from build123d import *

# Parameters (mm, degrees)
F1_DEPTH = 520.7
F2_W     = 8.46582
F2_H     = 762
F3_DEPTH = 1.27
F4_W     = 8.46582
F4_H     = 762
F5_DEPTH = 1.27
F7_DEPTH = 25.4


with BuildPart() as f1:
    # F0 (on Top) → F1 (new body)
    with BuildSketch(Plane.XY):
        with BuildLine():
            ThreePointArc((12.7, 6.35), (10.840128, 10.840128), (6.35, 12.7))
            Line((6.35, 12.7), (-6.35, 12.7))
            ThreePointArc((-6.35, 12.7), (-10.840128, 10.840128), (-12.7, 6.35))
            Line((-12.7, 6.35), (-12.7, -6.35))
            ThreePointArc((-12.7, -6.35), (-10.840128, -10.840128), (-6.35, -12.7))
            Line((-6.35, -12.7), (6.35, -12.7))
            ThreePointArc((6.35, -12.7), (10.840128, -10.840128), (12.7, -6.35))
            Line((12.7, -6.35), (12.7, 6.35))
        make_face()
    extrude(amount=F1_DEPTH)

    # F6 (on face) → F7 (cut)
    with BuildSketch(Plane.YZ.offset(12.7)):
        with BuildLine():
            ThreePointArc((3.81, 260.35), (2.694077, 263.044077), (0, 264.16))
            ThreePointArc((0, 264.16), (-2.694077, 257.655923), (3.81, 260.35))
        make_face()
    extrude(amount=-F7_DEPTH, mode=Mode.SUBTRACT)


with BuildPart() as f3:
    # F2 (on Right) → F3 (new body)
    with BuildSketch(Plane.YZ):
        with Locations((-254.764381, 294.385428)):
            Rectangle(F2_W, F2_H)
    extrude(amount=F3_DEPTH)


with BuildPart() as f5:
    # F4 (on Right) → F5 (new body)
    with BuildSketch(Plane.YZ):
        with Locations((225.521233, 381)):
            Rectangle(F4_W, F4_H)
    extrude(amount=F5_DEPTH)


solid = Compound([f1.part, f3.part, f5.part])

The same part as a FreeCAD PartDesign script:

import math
import FreeCAD as App
import Part
import Sketcher
from FreeCAD import Vector
Q = App.Units.Quantity

doc = App.newDocument("Part")
body = doc.addObject("PartDesign::Body", "Body")

# Sketch on XY plane
sketch1 = body.newObject("Sketcher::SketchObject", "Sketch")
sketch1.AttachmentSupport = (doc.getObject("XY_Plane"), [""])
sketch1.MapMode = "FlatFace"
sketch1.addGeometry(Part.ArcOfCircle(Part.Circle(Vector(6, 6, 0), Vector(0, 0, 1), 6), math.radians(0), math.radians(90)), False)
sketch1.addGeometry(Part.LineSegment(Vector(6, 13, 0), Vector(-6, 13, 0)), False)
sketch1.addGeometry(Part.ArcOfCircle(Part.Circle(Vector(-6, 6, 0), Vector(0, 0, 1), 6), math.radians(90), math.radians(180)), False)
sketch1.addGeometry(Part.LineSegment(Vector(-13, 6, 0), Vector(-13, -6, 0)), False)
sketch1.addGeometry(Part.ArcOfCircle(Part.Circle(Vector(-6, -6, 0), Vector(0, 0, 1), 6), math.radians(-180), math.radians(-90)), False)
sketch1.addGeometry(Part.LineSegment(Vector(-6, -13, 0), Vector(6, -13, 0)), False)
sketch1.addGeometry(Part.ArcOfCircle(Part.Circle(Vector(6, -6, 0), Vector(0, 0, 1), 6), math.radians(-90), math.radians(0)), False)
sketch1.addGeometry(Part.LineSegment(Vector(13, -6, 0), Vector(13, 6, 0)), False)
sketch1.addConstraint(Sketcher.Constraint("Tangent", 0, 2, 1, 1))
sketch1.addConstraint(Sketcher.Constraint("Tangent", 1, 2, 2, 1))
sketch1.addConstraint(Sketcher.Constraint("Tangent", 2, 2, 3, 1))
sketch1.addConstraint(Sketcher.Constraint("Tangent", 3, 2, 4, 1))
sketch1.addConstraint(Sketcher.Constraint("Tangent", 4, 2, 5, 1))
sketch1.addConstraint(Sketcher.Constraint("Tangent", 5, 2, 6, 1))
sketch1.addConstraint(Sketcher.Constraint("Tangent", 6, 2, 7, 1))
sketch1.addConstraint(Sketcher.Constraint("Tangent", 7, 2, 0, 1))
sketch1.addConstraint(Sketcher.Constraint("Horizontal", 1))
sketch1.addConstraint(Sketcher.Constraint("Vertical", 3))
sketch1.addConstraint(Sketcher.Constraint("Horizontal", 5))
sketch1.addConstraint(Sketcher.Constraint("Vertical", 7))
sketch1.addConstraint(Sketcher.Constraint("Equal", 0, 2))
sketch1.addConstraint(Sketcher.Constraint("Equal", 2, 4))
sketch1.addConstraint(Sketcher.Constraint("Equal", 4, 6))
sketch1.addConstraint(Sketcher.Constraint("Symmetric", 0, 3, 4, 3, -1, 1))
sketch1.addConstraint(Sketcher.Constraint("Equal", 5, 3))
sketch1.addConstraint(Sketcher.Constraint("Radius", 0, Q("0.25 in")))
sketch1.addConstraint(Sketcher.Constraint("DistanceX", 1, 2, 1, 1, Q("0.5 in")))
pad1 = body.newObject("PartDesign::Pad", "Pad")
pad1.Profile = sketch1
pad1.Length = Q("20.5 in")

# Sketch on YZ plane
sketch2 = body.newObject("Sketcher::SketchObject", "Sketch001")
sketch2.AttachmentSupport = (doc.getObject("YZ_Plane"), [""])
sketch2.MapMode = "FlatFace"
sketch2.AttachmentOffset = App.Placement(Vector(0, 0, 0.5 * 25.4), App.Rotation())
sketch2.addGeometry(Part.ArcOfCircle(Part.Circle(Vector(0, 260.4, 0), Vector(0, 0, 1), 3.8), math.radians(0), math.radians(90)), False)
sketch2.addGeometry(Part.ArcOfCircle(Part.Circle(Vector(0, 260.3, 0), Vector(0, 0, 1), 3.8), math.radians(90), math.radians(360)), False)
sketch2.addConstraint(Sketcher.Constraint("Tangent", 0, 1, 1, 2))
sketch2.addConstraint(Sketcher.Constraint("Coincident", 1, 1, 0, 2))
sketch2.addConstraint(Sketcher.Constraint("PointOnObject", 0, 3, -2))
sketch2.addConstraint(Sketcher.Constraint("PointOnObject", 1, 1, -2))
sketch2.addConstraint(Sketcher.Constraint("Horizontal", 1, 3, 0, 1))
sketch2.addConstraint(Sketcher.Constraint("Radius", 0, Q("0.15 in")))
sketch2.addConstraint(Sketcher.Constraint("DistanceY", -1, 1, 1, 1, Q("10.4 in")))
pocket1 = body.newObject("PartDesign::Pocket", "Pocket")
pocket1.Profile = sketch2
pocket1.Length = Q("1 in")
body2 = doc.addObject("PartDesign::Body", "Body001")

# Sketch on YZ plane
sketch3 = body2.newObject("Sketcher::SketchObject", "Sketch002")
sketch3.AttachmentSupport = (doc.getObject("YZ_Plane001"), [""])
sketch3.MapMode = "FlatFace"
sketch3.addGeometry(Part.LineSegment(Vector(-259, 675, 0), Vector(-259, -87, 0)), False)
sketch3.addGeometry(Part.LineSegment(Vector(-259, -87, 0), Vector(-251, -87, 0)), False)
sketch3.addGeometry(Part.LineSegment(Vector(-251, -87, 0), Vector(-251, 675, 0)), False)
sketch3.addGeometry(Part.LineSegment(Vector(-251, 675, 0), Vector(-259, 675, 0)), False)
sketch3.addConstraint(Sketcher.Constraint("Coincident", 0, 2, 1, 1))
sketch3.addConstraint(Sketcher.Constraint("Coincident", 1, 2, 2, 1))
sketch3.addConstraint(Sketcher.Constraint("Coincident", 2, 2, 3, 1))
sketch3.addConstraint(Sketcher.Constraint("Coincident", 3, 2, 0, 1))
sketch3.addConstraint(Sketcher.Constraint("Vertical", 0))
sketch3.addConstraint(Sketcher.Constraint("Horizontal", 1))
sketch3.addConstraint(Sketcher.Constraint("Vertical", 2))
sketch3.addConstraint(Sketcher.Constraint("Horizontal", 3))
sketch3.addConstraint(Sketcher.Constraint("DistanceY", 0, 2, 0, 1, Q("30 in")))
sketch3.addConstraint(Sketcher.Constraint("DistanceX", 1, 1, 1, 2, Q("0.3333 in")))
sketch3.addConstraint(Sketcher.Constraint("DistanceX", 0, 2, -1, 1, 258.997291))
sketch3.addConstraint(Sketcher.Constraint("DistanceY", 0, 2, -1, 1, 86.614572))
pad2 = body2.newObject("PartDesign::Pad", "Pad001")
pad2.Profile = sketch3
pad2.Length = Q("0.05 in")
body3 = doc.addObject("PartDesign::Body", "Body002")

# Sketch on YZ plane
sketch4 = body3.newObject("Sketcher::SketchObject", "Sketch003")
sketch4.AttachmentSupport = (doc.getObject("YZ_Plane002"), [""])
sketch4.MapMode = "FlatFace"
sketch4.addGeometry(Part.LineSegment(Vector(221, 762, 0), Vector(221, 0, 0)), False)
sketch4.addGeometry(Part.LineSegment(Vector(221, 0, 0), Vector(230, 0, 0)), False)
sketch4.addGeometry(Part.LineSegment(Vector(230, 0, 0), Vector(230, 762, 0)), False)
sketch4.addGeometry(Part.LineSegment(Vector(230, 762, 0), Vector(221, 762, 0)), False)
sketch4.addConstraint(Sketcher.Constraint("Coincident", 0, 2, 1, 1))
sketch4.addConstraint(Sketcher.Constraint("Coincident", 1, 2, 2, 1))
sketch4.addConstraint(Sketcher.Constraint("Coincident", 2, 2, 3, 1))
sketch4.addConstraint(Sketcher.Constraint("Coincident", 3, 2, 0, 1))
sketch4.addConstraint(Sketcher.Constraint("Vertical", 0))
sketch4.addConstraint(Sketcher.Constraint("Horizontal", 1))
sketch4.addConstraint(Sketcher.Constraint("Vertical", 2))
sketch4.addConstraint(Sketcher.Constraint("Horizontal", 3))
sketch4.addConstraint(Sketcher.Constraint("PointOnObject", 0, 2, -1))
sketch4.addConstraint(Sketcher.Constraint("DistanceY", 0, 2, 0, 1, Q("30 in")))
sketch4.addConstraint(Sketcher.Constraint("DistanceX", 1, 1, 1, 2, Q("0.3333 in")))
sketch4.addConstraint(Sketcher.Constraint("DistanceX", -1, 1, 0, 2, 221.288323))
pad3 = body3.newObject("PartDesign::Pad", "Pad002")
pad3.Profile = sketch4
pad3.Length = Q("0.05 in")

doc.recompute()
